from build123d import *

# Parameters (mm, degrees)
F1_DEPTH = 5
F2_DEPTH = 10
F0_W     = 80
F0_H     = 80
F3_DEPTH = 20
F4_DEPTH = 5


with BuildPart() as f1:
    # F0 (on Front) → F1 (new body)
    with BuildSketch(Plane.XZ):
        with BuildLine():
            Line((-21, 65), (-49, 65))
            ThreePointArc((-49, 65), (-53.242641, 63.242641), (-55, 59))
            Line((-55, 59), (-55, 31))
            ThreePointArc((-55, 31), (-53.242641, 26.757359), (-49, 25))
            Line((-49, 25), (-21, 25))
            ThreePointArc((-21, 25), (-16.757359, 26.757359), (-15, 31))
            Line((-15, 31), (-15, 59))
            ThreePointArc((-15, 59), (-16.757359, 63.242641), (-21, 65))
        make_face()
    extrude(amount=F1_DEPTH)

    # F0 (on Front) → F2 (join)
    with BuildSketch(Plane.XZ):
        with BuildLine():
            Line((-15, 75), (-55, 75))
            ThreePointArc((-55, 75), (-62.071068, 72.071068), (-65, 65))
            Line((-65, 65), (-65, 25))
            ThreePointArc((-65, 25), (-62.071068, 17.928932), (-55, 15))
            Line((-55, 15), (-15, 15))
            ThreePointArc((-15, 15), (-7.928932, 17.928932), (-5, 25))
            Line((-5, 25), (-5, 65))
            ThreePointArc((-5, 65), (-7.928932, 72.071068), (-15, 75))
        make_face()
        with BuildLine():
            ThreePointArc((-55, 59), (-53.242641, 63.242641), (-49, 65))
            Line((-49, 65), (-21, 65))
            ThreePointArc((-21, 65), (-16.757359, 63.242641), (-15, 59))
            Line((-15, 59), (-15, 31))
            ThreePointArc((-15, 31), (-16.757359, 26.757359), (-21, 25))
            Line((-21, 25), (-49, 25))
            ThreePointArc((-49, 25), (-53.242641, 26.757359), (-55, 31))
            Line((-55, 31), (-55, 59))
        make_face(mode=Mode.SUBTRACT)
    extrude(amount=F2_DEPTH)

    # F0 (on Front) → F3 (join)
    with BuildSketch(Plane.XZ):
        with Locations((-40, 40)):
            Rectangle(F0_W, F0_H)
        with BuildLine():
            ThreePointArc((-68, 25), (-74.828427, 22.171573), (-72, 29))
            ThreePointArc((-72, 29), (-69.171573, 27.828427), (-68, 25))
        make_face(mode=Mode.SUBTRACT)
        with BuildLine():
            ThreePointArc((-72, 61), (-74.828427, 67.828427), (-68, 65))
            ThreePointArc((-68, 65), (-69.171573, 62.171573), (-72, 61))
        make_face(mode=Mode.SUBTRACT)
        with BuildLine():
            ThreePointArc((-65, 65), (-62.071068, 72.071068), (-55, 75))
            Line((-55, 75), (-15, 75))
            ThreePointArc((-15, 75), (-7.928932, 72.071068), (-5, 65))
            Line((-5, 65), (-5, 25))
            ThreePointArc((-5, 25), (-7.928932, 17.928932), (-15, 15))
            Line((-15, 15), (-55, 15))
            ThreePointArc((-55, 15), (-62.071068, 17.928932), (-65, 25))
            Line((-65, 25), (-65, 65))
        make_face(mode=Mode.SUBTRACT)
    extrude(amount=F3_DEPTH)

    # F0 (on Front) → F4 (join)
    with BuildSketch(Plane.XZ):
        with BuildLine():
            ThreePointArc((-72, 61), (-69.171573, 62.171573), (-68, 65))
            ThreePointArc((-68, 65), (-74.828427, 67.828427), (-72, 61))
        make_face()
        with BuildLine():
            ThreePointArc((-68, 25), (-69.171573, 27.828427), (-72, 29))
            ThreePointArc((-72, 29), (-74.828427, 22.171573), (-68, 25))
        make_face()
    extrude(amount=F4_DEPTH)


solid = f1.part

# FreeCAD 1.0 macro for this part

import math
import FreeCAD as App
import Part
import Sketcher

V = App.Vector
Q = App.Units.Quantity

doc = App.newDocument("Part")
params = doc.addObject("Spreadsheet::Sheet", "Params")
for row, (alias, value) in enumerate([
    ("sketch1_radius", "5.999999 mm"),
    ("sketch1_width", "28 mm"),
    ("pad1_length", "5 mm"),
    ("sketch2_radius", "9.999999 mm"),
    ("sketch2_radius2", "5.999999 mm"),
    ("sketch2_width", "40 mm"),
    ("pad2_length", "10 mm"),
    ("sketch3_radius", "4 mm"),
    ("sketch3_radius2", "9.999999 mm"),
    ("sketch3_width", "80 mm"),
    ("sketch3_width2", "40 mm"),
    ("pad3_length", "20 mm"),
    ("sketch4_radius", "4 mm"),
    ("pad4_length", "5 mm"),
], start=1):
    params.set(f"A{row}", alias)
    params.set(f"B{row}", "=" + value)
    params.setAlias(f"B{row}", alias)

body = doc.addObject("PartDesign::Body", "Body")

# Sketch on XZ plane
sketch1 = body.newObject("Sketcher::SketchObject", "Sketch")
sketch1.AttachmentSupport = (doc.getObject("XZ_Plane"), [""])
sketch1.MapMode = "FlatFace"
sketch1.addGeometry([
    Part.LineSegment(V(-21, 65, 0), V(-49, 65, 0)),  # 0
    Part.ArcOfCircle(Part.Circle(V(-49.000001, 59.000001, 0), V(0, 0, 1), 5.999999), math.radians(89.99999), math.radians(180.00001)),  # 1
    Part.LineSegment(V(-55, 59, 0), V(-55, 31, 0)),  # 2
    Part.ArcOfCircle(Part.Circle(V(-49.000001, 30.999999, 0), V(0, 0, 1), 5.999999), math.radians(179.99999), math.radians(270.00001)),  # 3
    Part.LineSegment(V(-49, 25, 0), V(-21, 25, 0)),  # 4
    Part.ArcOfCircle(Part.Circle(V(-20.999999, 30.999999, 0), V(0, 0, 1), 5.999999), math.radians(-90.00001), math.radians(0.00001)),  # 5
    Part.LineSegment(V(-15, 31, 0), V(-15, 59, 0)),  # 6
    Part.ArcOfCircle(Part.Circle(V(-20.999999, 59.000001, 0), V(0, 0, 1), 5.999999), math.radians(-0.00001), math.radians(90.00001)),  # 7
], False)
sketch1.addConstraint([
    Sketcher.Constraint("Tangent", 0, 2, 1, 1),
    Sketcher.Constraint("Tangent", 1, 2, 2, 1),
    Sketcher.Constraint("Tangent", 2, 2, 3, 1),
    Sketcher.Constraint("Tangent", 3, 2, 4, 1),
    Sketcher.Constraint("Tangent", 4, 2, 5, 1),
    Sketcher.Constraint("Tangent", 5, 2, 6, 1),
    Sketcher.Constraint("Tangent", 6, 2, 7, 1),
    Sketcher.Constraint("Tangent", 7, 2, 0, 1),
    Sketcher.Constraint("Horizontal", 0),
    Sketcher.Constraint("Vertical", 2),
    Sketcher.Constraint("Horizontal", 4),
    Sketcher.Constraint("Vertical", 6),
    Sketcher.Constraint("Equal", 1, 3),
    Sketcher.Constraint("Equal", 3, 5),
    Sketcher.Constraint("Equal", 5, 7),
    Sketcher.Constraint("Equal", 4, 2),
    Sketcher.Constraint("Radius", 1, Q("5.999999 mm")),
    Sketcher.Constraint("DistanceX", 0, 2, 0, 1, Q("28 mm")),
    Sketcher.Constraint("DistanceX", 1, 3, -1, 1, Q("49.000001 mm")),
    Sketcher.Constraint("DistanceY", -1, 1, 1, 3, Q("59.000001 mm")),
])
sketch1.setExpression("Constraints[16]", "Params.sketch1_radius")
sketch1.setExpression("Constraints[17]", "Params.sketch1_width")
pad1 = body.newObject("PartDesign::Pad", "Pad")
pad1.Profile = sketch1
pad1.setExpression("Length", "Params.pad1_length")

# Sketch on XZ plane
sketch2 = body.newObject("Sketcher::SketchObject", "Sketch001")
sketch2.AttachmentSupport = (doc.getObject("XZ_Plane"), [""])
sketch2.MapMode = "FlatFace"
sketch2.addGeometry([
    Part.LineSegment(V(-15, 75, 0), V(-55, 75, 0)),  # 0
    Part.ArcOfCircle(Part.Circle(V(-55.000001, 65.000001, 0), V(0, 0, 1), 9.999999), math.radians(89.999996), math.radians(180.000004)),  # 1
    Part.LineSegment(V(-65, 65, 0), V(-65, 25, 0)),  # 2
    Part.ArcOfCircle(Part.Circle(V(-55.000001, 24.999999, 0), V(0, 0, 1), 9.999999), math.radians(179.999996), math.radians(270.000004)),  # 3
    Part.LineSegment(V(-55, 15, 0), V(-15, 15, 0)),  # 4
    Part.ArcOfCircle(Part.Circle(V(-14.999999, 24.999999, 0), V(0, 0, 1), 9.999999), math.radians(-90.000004), math.radians(0.000004)),  # 5
    Part.LineSegment(V(-5, 25, 0), V(-5, 65, 0)),  # 6
    Part.ArcOfCircle(Part.Circle(V(-14.999999, 65.000001, 0), V(0, 0, 1), 9.999999), math.radians(-0.000004), math.radians(90.000004)),  # 7
    Part.LineSegment(V(-55, 31, 0), V(-55, 59, 0)),  # 8
    Part.ArcOfCircle(Part.Circle(V(-49.000001, 59.000001, 0), V(0, 0, 1), 5.999999), math.radians(89.99999), math.radians(180.00001)),  # 9
    Part.LineSegment(V(-49, 65, 0), V(-21, 65, 0)),  # 10
    Part.ArcOfCircle(Part.Circle(V(-20.999999, 59.000001, 0), V(0, 0, 1), 5.999999), math.radians(-0.00001), math.radians(90.00001)),  # 11
    Part.LineSegment(V(-15, 59, 0), V(-15, 31, 0)),  # 12
    Part.ArcOfCircle(Part.Circle(V(-20.999999, 30.999999, 0), V(0, 0, 1), 5.999999), math.radians(-90.00001), math.radians(0.00001)),  # 13
    Part.LineSegment(V(-21, 25, 0), V(-49, 25, 0)),  # 14
    Part.ArcOfCircle(Part.Circle(V(-49.000001, 30.999999, 0), V(0, 0, 1), 5.999999), math.radians(179.99999), math.radians(270.00001)),  # 15
], False)
sketch2.addConstraint([
    Sketcher.Constraint("Tangent", 0, 2, 1, 1),
    Sketcher.Constraint("Tangent", 1, 2, 2, 1),
    Sketcher.Constraint("Tangent", 2, 2, 3, 1),
    Sketcher.Constraint("Tangent", 3, 2, 4, 1),
    Sketcher.Constraint("Tangent", 4, 2, 5, 1),
    Sketcher.Constraint("Tangent", 5, 2, 6, 1),
    Sketcher.Constraint("Tangent", 6, 2, 7, 1),
    Sketcher.Constraint("Tangent", 7, 2, 0, 1),
    Sketcher.Constraint("Tangent", 8, 2, 9, 2),
    Sketcher.Constraint("Tangent", 9, 1, 10, 1),
    Sketcher.Constraint("Tangent", 10, 2, 11, 2),
    Sketcher.Constraint("Tangent", 11, 1, 12, 1),
    Sketcher.Constraint("Tangent", 12, 2, 13, 2),
    Sketcher.Constraint("Tangent", 13, 1, 14, 1),
    Sketcher.Constraint("Tangent", 14, 2, 15, 2),
    Sketcher.Constraint("Tangent", 15, 1, 8, 1),
    Sketcher.Constraint("Horizontal", 0),
    Sketcher.Constraint("Vertical", 2),
    Sketcher.Constraint("Horizontal", 4),
    Sketcher.Constraint("Vertical", 6),
    Sketcher.Constraint("Vertical", 8),
    Sketcher.Constraint("Horizontal", 10),
    Sketcher.Constraint("Vertical", 12),
    Sketcher.Constraint("Horizontal", 14),
    Sketcher.Constraint("Equal", 1, 3),
    Sketcher.Constraint("Equal", 3, 5),
    Sketcher.Constraint("Equal", 5, 7),
    Sketcher.Constraint("Equal", 9, 11),
    Sketcher.Constraint("Equal", 11, 13),
    Sketcher.Constraint("Equal", 13, 15),
    Sketcher.Constraint("Horizontal", 6, 2, 9, 1),
    Sketcher.Constraint("Horizontal", 5, 2, 13, 1),
    Sketcher.Constraint("Vertical", 3, 2, 8, 2),
    Sketcher.Constraint("Vertical", 7, 2, 11, 1),
    Sketcher.Constraint("Equal", 4, 2),
    Sketcher.Constraint("Radius", 1, Q("9.999999 mm")),
    Sketcher.Constraint("Radius", 9, Q("5.999999 mm")),
    Sketcher.Constraint("DistanceX", 0, 2, 0, 1, Q("40 mm")),
    Sketcher.Constraint("DistanceX", 1, 3, -1, 1, Q("55.000001 mm")),
    Sketcher.Constraint("DistanceY", -1, 1, 1, 3, Q("65.000001 mm")),
])
sketch2.setExpression("Constraints[35]", "Params.sketch2_radius")
sketch2.setExpression("Constraints[36]", "Params.sketch2_radius2")
sketch2.setExpression("Constraints[37]", "Params.sketch2_width")
pad2 = body.newObject("PartDesign::Pad", "Pad001")
pad2.Profile = sketch2
pad2.setExpression("Length", "Params.pad2_length")

# Sketch on XZ plane
sketch3 = body.newObject("Sketcher::SketchObject", "Sketch002")
sketch3.AttachmentSupport = (doc.getObject("XZ_Plane"), [""])
sketch3.MapMode = "FlatFace"
sketch3.addGeometry([
    Part.LineSegment(V(-80, 80, 0), V(-80, 0, 0)),  # 0
    Part.LineSegment(V(-80, 0, 0), V(0, 0, 0)),  # 1
    Part.LineSegment(V(0, 0, 0), V(0, 80, 0)),  # 2
    Part.LineSegment(V(0, 80, 0), V(-80, 80, 0)),  # 3
    Part.ArcOfCircle(Part.Circle(V(-72, 25, 0), V(0, 0, 1), 4), math.radians(0.000006), math.radians(89.999994)),  # 4
    Part.ArcOfCircle(Part.Circle(V(-72, 25, 0), V(0, 0, 1), 4), math.radians(90.000001), math.radians(359.999999)),  # 5
    Part.ArcOfCircle(Part.Circle(V(-72, 65, 0), V(0, 0, 1), 4), math.radians(-89.999994), math.radians(-0.000006)),  # 6
    Part.ArcOfCircle(Part.Circle(V(-72, 65, 0), V(0, 0, 1), 4), math.radians(0.000001), math.radians(269.999999)),  # 7
    Part.LineSegment(V(-65, 25, 0), V(-65, 65, 0)),  # 8
    Part.ArcOfCircle(Part.Circle(V(-55.000001, 65.000001, 0), V(0, 0, 1), 9.999999), math.radians(89.999996), math.radians(180.000004)),  # 9
    Part.LineSegment(V(-55, 75, 0), V(-15, 75, 0)),  # 10
    Part.ArcOfCircle(Part.Circle(V(-14.999999, 65.000001, 0), V(0, 0, 1), 9.999999), math.radians(-0.000004), math.radians(90.000004)),  # 11
    Part.LineSegment(V(-5, 65, 0), V(-5, 25, 0)),  # 12
    Part.ArcOfCircle(Part.Circle(V(-14.999999, 24.999999, 0), V(0, 0, 1), 9.999999), math.radians(-90.000004), math.radians(0.000004)),  # 13
    Part.LineSegment(V(-15, 15, 0), V(-55, 15, 0)),  # 14
    Part.ArcOfCircle(Part.Circle(V(-55.000001, 24.999999, 0), V(0, 0, 1), 9.999999), math.radians(179.999996), math.radians(270.000004)),  # 15
], False)
sketch3.addConstraint([
    Sketcher.Constraint("Coincident", 0, 2, 1, 1),
    Sketcher.Constraint("Coincident", 1, 2, 2, 1),
    Sketcher.Constraint("Coincident", 2, 2, 3, 1),
    Sketcher.Constraint("Coincident", 3, 2, 0, 1),
    Sketcher.Constraint("Tangent", 4, 1, 5, 2),
    Sketcher.Constraint("Coincident", 5, 1, 4, 2),
    Sketcher.Constraint("Tangent", 6, 1, 7, 2),
    Sketcher.Constraint("Coincident", 7, 1, 6, 2),
    Sketcher.Constraint("Tangent", 8, 2, 9, 2),
    Sketcher.Constraint("Tangent", 9, 1, 10, 1),
    Sketcher.Constraint("Tangent", 10, 2, 11, 2),
    Sketcher.Constraint("Tangent", 11, 1, 12, 1),
    Sketcher.Constraint("Tangent", 12, 2, 13, 2),
    Sketcher.Constraint("Tangent", 13, 1, 14, 1),
    Sketcher.Constraint("Tangent", 14, 2, 15, 2),
    Sketcher.Constraint("Tangent", 15, 1, 8, 1),
    Sketcher.Constraint("Vertical", 0),
    Sketcher.Constraint("Horizontal", 1),
    Sketcher.Constraint("Vertical", 2),
    Sketcher.Constraint("Horizontal", 3),
    Sketcher.Constraint("Vertical", 8),
    Sketcher.Constraint("Horizontal", 10),
    Sketcher.Constraint("Vertical", 12),
    Sketcher.Constraint("Horizontal", 14),
    Sketcher.Constraint("Coincident", 1, 2, -1, 1),
    Sketcher.Constraint("Equal", 5, 6),
    Sketcher.Constraint("Equal", 9, 11),
    Sketcher.Constraint("Equal", 11, 13),
    Sketcher.Constraint("Equal", 13, 15),
    Sketcher.Constraint("Horizontal", 7, 3, 9, 3),
    Sketcher.Constraint("Horizontal", 5, 3, 13, 3),
    Sketcher.Constraint("Horizontal", 15, 3, 4, 1),
    Sketcher.Constraint("Horizontal", 11, 3, 7, 1),
    Sketcher.Constraint("Vertical", 5, 3, 6, 3),
    Sketcher.Constraint("Vertical", 7, 3, 5, 1),
    Sketcher.Constraint("Vertical", 5, 1, 6, 1),
    Sketcher.Constraint("Equal", 3, 0),
    Sketcher.Constraint("Equal", 14, 8),
    Sketcher.Constraint("Radius", 4, Q("4 mm")),
    Sketcher.Constraint("Radius", 9, Q("9.999999 mm")),
    Sketcher.Constraint("DistanceX", 1, 1, 1, 2, Q("80 mm")),
    Sketcher.Constraint("DistanceX", 10, 1, 10, 2, Q("40 mm")),
    Sketcher.Constraint("DistanceX", 4, 3, -1, 1, Q("72 mm")),
    Sketcher.Constraint("DistanceY", -1, 1, 4, 3, Q("25 mm")),
    Sketcher.Constraint("DistanceX", 9, 3, -1, 1, Q("55.000001 mm")),
])
sketch3.setExpression("Constraints[38]", "Params.sketch3_radius")
sketch3.setExpression("Constraints[39]", "Params.sketch3_radius2")
sketch3.setExpression("Constraints[40]", "Params.sketch3_width")
sketch3.setExpression("Constraints[41]", "Params.sketch3_width2")
pad3 = body.newObject("PartDesign::Pad", "Pad002")
pad3.Profile = sketch3
pad3.setExpression("Length", "Params.pad3_length")

# Sketch on XZ plane
sketch4 = body.newObject("Sketcher::SketchObject", "Sketch003")
sketch4.AttachmentSupport = (doc.getObject("XZ_Plane"), [""])
sketch4.MapMode = "FlatFace"
sketch4.addGeometry([
    Part.ArcOfCircle(Part.Circle(V(-72, 65, 0), V(0, 0, 1), 4), math.radians(-89.999994), math.radians(-0.000006)),
    Part.ArcOfCircle(Part.Circle(V(-72, 65, 0), V(0, 0, 1), 4), math.radians(0.000001), math.radians(269.999999)),
    Part.ArcOfCircle(Part.Circle(V(-72, 25, 0), V(0, 0, 1), 4), math.radians(0.000006), math.radians(89.999994)),
    Part.ArcOfCircle(Part.Circle(V(-72, 25, 0), V(0, 0, 1), 4), math.radians(90.000001), math.radians(359.999999)),
], False)
sketch4.addConstraint([
    Sketcher.Constraint("Tangent", 0, 1, 1, 2),
    Sketcher.Constraint("Coincident", 1, 1, 0, 2),
    Sketcher.Constraint("Tangent", 2, 1, 3, 2),
    Sketcher.Constraint("Coincident", 3, 1, 2, 2),
    Sketcher.Constraint("Equal", 1, 2),
    Sketcher.Constraint("Horizontal", 0, 3, 1, 1),
    Sketcher.Constraint("Horizontal", 3, 3, 2, 1),
    Sketcher.Constraint("Vertical", 1, 3, 2, 3),
    Sketcher.Constraint("Vertical", 3, 3, 0, 1),
    Sketcher.Constraint("Vertical", 0, 1, 3, 1),
    Sketcher.Constraint("Radius", 0, Q("4 mm")),
    Sketcher.Constraint("DistanceX", 0, 3, -1, 1, Q("72 mm")),
    Sketcher.Constraint("DistanceY", -1, 1, 0, 3, Q("65 mm")),
    Sketcher.Constraint("DistanceY", -1, 1, 2, 3, Q("25 mm")),
])
sketch4.setExpression("Constraints[10]", "Params.sketch4_radius")
pad4 = body.newObject("PartDesign::Pad", "Pad003")
pad4.Profile = sketch4
pad4.setExpression("Length", "Params.pad4_length")

doc.recompute()
